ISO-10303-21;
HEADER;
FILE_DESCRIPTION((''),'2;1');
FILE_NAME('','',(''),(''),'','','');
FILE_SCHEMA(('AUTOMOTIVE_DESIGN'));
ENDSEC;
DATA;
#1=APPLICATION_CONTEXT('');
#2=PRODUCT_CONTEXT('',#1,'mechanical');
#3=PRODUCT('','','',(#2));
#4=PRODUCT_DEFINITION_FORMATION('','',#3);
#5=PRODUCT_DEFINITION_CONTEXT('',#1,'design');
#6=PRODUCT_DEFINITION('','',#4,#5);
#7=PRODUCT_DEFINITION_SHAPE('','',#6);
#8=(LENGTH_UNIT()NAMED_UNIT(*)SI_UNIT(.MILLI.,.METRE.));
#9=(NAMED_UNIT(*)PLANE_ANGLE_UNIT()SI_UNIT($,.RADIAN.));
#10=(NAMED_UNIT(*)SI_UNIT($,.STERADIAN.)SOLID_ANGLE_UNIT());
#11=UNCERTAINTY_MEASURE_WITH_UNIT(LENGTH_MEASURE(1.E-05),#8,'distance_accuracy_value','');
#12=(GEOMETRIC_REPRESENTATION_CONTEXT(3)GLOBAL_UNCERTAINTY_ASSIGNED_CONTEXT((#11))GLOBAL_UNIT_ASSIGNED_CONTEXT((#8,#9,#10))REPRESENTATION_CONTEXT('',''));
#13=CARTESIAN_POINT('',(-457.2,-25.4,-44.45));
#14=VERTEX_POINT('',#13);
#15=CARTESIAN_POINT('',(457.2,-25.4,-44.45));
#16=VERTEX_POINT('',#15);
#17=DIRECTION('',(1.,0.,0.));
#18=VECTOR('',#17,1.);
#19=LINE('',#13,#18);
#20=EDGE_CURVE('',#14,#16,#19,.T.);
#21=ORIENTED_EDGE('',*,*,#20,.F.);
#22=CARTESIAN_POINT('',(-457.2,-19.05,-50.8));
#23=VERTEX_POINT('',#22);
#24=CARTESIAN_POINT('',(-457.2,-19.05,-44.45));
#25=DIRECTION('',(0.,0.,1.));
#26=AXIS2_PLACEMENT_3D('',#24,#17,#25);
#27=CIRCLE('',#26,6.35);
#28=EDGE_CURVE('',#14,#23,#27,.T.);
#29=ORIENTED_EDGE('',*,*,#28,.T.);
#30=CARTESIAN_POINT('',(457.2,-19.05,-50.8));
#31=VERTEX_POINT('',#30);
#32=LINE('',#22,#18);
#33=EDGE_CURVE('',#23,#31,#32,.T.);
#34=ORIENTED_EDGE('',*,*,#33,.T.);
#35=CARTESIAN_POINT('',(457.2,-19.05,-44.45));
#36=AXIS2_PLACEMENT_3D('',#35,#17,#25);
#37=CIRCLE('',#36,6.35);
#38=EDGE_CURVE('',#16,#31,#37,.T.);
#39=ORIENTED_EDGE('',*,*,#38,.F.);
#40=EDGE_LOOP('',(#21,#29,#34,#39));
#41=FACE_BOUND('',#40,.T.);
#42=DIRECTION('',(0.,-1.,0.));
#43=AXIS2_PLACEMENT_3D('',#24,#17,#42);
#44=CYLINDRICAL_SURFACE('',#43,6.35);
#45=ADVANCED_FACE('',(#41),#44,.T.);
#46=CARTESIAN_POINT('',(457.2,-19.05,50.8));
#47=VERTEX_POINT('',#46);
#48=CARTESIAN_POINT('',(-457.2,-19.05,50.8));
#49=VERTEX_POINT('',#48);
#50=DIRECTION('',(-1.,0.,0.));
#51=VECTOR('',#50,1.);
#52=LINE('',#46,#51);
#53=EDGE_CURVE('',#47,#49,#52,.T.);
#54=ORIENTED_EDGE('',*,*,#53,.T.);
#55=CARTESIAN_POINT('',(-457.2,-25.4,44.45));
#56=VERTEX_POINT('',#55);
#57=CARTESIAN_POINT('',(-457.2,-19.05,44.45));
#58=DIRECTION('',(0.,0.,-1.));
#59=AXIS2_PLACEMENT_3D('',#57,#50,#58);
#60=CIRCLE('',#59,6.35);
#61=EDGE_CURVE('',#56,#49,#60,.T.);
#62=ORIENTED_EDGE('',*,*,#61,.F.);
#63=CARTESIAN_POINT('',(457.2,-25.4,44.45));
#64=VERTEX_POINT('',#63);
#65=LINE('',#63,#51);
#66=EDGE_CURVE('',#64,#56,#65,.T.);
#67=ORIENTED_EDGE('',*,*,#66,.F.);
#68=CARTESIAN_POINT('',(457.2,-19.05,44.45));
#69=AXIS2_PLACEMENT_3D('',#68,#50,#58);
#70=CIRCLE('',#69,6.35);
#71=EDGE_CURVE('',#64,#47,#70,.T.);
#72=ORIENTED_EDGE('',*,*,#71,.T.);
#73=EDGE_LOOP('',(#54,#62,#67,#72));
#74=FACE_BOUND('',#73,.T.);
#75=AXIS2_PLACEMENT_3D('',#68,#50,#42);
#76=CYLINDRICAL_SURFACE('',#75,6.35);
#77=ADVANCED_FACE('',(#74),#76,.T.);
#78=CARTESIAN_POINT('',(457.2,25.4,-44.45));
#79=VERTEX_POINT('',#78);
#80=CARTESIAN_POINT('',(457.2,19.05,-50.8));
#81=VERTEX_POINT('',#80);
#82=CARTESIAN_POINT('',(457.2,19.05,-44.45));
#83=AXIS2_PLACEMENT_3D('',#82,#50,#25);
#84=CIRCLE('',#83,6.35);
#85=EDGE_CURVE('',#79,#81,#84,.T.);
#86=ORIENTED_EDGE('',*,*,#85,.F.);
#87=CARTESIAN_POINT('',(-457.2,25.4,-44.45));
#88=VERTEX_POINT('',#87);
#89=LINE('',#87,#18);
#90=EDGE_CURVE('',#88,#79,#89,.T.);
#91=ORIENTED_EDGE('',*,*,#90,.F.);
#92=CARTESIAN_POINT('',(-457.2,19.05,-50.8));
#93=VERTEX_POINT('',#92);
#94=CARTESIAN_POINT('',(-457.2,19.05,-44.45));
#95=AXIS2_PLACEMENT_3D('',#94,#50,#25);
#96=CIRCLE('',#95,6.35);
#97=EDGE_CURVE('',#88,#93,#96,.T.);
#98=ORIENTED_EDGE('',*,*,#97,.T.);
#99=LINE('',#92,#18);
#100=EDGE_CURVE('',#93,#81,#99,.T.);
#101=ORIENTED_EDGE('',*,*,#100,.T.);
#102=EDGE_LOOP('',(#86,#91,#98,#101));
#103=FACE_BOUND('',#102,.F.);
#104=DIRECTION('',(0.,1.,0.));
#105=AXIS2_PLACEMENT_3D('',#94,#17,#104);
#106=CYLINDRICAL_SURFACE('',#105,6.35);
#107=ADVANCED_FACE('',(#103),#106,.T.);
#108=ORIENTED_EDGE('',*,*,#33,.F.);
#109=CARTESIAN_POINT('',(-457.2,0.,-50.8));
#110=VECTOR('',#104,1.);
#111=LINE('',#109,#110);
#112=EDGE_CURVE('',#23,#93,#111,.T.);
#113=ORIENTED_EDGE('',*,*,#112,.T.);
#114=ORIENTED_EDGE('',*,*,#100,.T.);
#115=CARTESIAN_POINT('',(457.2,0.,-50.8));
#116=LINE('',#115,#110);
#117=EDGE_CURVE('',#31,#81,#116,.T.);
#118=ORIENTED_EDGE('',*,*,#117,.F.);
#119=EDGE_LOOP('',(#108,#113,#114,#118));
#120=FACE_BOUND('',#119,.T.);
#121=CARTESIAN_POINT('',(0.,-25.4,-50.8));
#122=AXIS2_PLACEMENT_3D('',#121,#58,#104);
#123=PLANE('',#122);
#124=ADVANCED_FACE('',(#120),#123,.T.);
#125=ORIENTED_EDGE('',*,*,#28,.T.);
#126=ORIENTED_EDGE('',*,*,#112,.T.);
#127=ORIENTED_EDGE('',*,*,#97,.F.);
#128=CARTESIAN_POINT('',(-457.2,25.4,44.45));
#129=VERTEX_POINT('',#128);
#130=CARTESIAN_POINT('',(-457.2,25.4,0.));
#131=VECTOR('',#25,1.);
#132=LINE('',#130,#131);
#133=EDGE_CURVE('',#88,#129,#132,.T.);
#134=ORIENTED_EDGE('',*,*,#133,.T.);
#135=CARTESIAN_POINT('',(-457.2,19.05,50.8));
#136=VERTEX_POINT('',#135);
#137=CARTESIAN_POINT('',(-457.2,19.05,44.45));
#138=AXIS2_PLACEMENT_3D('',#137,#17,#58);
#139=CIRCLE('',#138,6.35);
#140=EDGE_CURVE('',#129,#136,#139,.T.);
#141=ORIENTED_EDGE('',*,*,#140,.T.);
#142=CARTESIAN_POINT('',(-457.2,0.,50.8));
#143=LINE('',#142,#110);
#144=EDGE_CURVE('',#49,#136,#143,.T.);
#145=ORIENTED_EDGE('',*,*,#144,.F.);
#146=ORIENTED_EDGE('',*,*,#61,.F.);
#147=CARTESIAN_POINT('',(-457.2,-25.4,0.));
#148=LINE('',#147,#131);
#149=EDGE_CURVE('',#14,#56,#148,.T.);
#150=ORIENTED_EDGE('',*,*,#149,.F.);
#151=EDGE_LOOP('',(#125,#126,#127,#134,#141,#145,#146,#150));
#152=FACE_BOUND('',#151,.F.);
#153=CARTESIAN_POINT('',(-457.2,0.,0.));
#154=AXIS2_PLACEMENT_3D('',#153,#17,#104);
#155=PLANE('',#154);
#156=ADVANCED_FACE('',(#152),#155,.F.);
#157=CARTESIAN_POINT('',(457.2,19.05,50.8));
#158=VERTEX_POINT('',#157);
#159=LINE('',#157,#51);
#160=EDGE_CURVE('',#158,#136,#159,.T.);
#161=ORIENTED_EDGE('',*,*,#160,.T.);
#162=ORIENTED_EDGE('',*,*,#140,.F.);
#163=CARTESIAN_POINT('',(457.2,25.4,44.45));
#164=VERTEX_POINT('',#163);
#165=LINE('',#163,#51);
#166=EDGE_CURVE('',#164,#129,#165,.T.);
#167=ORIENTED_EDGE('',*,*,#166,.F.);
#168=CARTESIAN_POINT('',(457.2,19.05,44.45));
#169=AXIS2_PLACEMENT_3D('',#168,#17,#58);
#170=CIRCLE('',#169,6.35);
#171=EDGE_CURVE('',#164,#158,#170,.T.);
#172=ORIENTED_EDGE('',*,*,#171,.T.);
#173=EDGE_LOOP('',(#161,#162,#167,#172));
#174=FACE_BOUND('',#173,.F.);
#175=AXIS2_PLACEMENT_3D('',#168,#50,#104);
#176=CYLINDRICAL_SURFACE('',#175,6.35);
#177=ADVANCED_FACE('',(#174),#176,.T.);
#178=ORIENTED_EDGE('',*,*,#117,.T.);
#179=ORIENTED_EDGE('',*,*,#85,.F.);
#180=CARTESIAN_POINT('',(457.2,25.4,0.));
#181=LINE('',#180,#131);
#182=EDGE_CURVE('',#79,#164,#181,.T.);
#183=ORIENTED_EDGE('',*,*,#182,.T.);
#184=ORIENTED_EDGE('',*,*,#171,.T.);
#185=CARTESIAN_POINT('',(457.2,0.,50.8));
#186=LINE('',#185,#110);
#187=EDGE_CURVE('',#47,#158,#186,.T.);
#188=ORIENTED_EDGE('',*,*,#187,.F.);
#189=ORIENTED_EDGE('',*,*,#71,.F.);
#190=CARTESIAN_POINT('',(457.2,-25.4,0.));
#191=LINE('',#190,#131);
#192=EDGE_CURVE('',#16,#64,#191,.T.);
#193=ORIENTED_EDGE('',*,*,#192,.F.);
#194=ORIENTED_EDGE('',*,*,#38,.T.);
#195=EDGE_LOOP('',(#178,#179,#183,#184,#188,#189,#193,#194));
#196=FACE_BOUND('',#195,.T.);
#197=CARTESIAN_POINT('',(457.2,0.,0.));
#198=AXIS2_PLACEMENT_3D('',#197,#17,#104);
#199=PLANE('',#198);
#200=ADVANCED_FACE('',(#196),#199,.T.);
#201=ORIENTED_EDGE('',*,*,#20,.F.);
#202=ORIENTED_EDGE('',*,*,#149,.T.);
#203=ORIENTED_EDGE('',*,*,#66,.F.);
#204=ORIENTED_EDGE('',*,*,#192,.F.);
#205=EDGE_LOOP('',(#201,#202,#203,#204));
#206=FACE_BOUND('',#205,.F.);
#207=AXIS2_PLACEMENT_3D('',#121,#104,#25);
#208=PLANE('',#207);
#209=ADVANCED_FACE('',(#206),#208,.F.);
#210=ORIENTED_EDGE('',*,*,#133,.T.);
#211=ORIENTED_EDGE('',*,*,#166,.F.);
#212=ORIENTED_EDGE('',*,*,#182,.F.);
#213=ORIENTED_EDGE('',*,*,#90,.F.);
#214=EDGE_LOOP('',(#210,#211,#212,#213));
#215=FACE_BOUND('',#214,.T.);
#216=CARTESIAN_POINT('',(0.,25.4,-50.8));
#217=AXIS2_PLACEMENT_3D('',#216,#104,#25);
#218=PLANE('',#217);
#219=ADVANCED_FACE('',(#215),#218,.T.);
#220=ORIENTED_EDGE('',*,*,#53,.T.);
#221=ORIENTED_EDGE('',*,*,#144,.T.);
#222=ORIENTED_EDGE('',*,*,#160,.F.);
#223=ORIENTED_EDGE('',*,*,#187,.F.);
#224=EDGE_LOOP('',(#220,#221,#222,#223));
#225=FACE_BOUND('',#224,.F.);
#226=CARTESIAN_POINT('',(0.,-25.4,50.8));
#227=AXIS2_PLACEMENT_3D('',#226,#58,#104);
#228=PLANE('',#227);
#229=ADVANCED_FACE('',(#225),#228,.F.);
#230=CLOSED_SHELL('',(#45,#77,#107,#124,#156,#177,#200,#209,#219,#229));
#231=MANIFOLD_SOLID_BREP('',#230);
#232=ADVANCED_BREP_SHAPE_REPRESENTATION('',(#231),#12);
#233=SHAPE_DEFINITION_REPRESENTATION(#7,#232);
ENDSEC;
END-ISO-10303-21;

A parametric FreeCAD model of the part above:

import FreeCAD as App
import Part
import Sketcher

V = App.Vector
Q = App.Units.Quantity


def edges_at(feature, points):
    """Names of the edges that pass closest to the given points."""
    edges = feature.Shape.Edges
    near = lambda p: min(range(len(edges)), key=lambda i: edges[i].distToShape(Part.Vertex(*p))[0])
    return sorted({f"Edge{near(p) + 1}" for p in points})


def add_polygon(sketch, points):
    """Adds a closed chain of lines whose ends are joined by coincident constraints."""
    first, n = sketch.GeometryCount, len(points)
    for a, b in zip(points, points[1:] + points[:1]):
        sketch.addGeometry(Part.LineSegment(App.Vector(*a, 0), App.Vector(*b, 0)), False)
    for i in range(n):
        sketch.addConstraint(Sketcher.Constraint("Coincident", first + i, 2, first + (i + 1) % n, 1))

doc = App.newDocument("Part")
body = doc.addObject("PartDesign::Body", "Body")

# Sketch on YZ plane
sketch1 = doc.addObject("Sketcher::SketchObject", "Sketch")
body.addObject(sketch1)
sketch1.AttachmentSupport = (doc.YZ_Plane, [""])
sketch1.MapMode = "FlatFace"
add_polygon(sketch1, [(-25, 51), (-25, -51), (25, -51), (25, 51)])  # lines 0-3
sketch1.addConstraint([
    Sketcher.Constraint("Vertical", 0),
    Sketcher.Constraint("Horizontal", 1),
    Sketcher.Constraint("Vertical", 2),
    Sketcher.Constraint("Horizontal", 3),
    Sketcher.Constraint("Symmetric", 0, 2, 2, 2, -1, 1),
    Sketcher.Constraint("DistanceX", 1, 1, 1, 2, Q("2 in")),
    Sketcher.Constraint("DistanceY", 0, 2, 0, 1, Q("4 in")),
])
pad1 = doc.addObject("PartDesign::Pad", "Pad")
body.addObject(pad1)
pad1.Profile = sketch1
pad1.Length = Q("36 in")
pad1.Midplane = True
doc.recompute()

fillet = doc.addObject("PartDesign::Fillet", "Fillet")
body.addObject(fillet)
fillet.Base = (pad1, edges_at(pad1, [
    (0, -25.4, -50.8),
    (0, 25.4, -50.8),
    (0, -25.4, 50.8),
    (0, 25.4, 50.8),
]))
fillet.Radius = Q("0.25 in")

doc.recompute()
